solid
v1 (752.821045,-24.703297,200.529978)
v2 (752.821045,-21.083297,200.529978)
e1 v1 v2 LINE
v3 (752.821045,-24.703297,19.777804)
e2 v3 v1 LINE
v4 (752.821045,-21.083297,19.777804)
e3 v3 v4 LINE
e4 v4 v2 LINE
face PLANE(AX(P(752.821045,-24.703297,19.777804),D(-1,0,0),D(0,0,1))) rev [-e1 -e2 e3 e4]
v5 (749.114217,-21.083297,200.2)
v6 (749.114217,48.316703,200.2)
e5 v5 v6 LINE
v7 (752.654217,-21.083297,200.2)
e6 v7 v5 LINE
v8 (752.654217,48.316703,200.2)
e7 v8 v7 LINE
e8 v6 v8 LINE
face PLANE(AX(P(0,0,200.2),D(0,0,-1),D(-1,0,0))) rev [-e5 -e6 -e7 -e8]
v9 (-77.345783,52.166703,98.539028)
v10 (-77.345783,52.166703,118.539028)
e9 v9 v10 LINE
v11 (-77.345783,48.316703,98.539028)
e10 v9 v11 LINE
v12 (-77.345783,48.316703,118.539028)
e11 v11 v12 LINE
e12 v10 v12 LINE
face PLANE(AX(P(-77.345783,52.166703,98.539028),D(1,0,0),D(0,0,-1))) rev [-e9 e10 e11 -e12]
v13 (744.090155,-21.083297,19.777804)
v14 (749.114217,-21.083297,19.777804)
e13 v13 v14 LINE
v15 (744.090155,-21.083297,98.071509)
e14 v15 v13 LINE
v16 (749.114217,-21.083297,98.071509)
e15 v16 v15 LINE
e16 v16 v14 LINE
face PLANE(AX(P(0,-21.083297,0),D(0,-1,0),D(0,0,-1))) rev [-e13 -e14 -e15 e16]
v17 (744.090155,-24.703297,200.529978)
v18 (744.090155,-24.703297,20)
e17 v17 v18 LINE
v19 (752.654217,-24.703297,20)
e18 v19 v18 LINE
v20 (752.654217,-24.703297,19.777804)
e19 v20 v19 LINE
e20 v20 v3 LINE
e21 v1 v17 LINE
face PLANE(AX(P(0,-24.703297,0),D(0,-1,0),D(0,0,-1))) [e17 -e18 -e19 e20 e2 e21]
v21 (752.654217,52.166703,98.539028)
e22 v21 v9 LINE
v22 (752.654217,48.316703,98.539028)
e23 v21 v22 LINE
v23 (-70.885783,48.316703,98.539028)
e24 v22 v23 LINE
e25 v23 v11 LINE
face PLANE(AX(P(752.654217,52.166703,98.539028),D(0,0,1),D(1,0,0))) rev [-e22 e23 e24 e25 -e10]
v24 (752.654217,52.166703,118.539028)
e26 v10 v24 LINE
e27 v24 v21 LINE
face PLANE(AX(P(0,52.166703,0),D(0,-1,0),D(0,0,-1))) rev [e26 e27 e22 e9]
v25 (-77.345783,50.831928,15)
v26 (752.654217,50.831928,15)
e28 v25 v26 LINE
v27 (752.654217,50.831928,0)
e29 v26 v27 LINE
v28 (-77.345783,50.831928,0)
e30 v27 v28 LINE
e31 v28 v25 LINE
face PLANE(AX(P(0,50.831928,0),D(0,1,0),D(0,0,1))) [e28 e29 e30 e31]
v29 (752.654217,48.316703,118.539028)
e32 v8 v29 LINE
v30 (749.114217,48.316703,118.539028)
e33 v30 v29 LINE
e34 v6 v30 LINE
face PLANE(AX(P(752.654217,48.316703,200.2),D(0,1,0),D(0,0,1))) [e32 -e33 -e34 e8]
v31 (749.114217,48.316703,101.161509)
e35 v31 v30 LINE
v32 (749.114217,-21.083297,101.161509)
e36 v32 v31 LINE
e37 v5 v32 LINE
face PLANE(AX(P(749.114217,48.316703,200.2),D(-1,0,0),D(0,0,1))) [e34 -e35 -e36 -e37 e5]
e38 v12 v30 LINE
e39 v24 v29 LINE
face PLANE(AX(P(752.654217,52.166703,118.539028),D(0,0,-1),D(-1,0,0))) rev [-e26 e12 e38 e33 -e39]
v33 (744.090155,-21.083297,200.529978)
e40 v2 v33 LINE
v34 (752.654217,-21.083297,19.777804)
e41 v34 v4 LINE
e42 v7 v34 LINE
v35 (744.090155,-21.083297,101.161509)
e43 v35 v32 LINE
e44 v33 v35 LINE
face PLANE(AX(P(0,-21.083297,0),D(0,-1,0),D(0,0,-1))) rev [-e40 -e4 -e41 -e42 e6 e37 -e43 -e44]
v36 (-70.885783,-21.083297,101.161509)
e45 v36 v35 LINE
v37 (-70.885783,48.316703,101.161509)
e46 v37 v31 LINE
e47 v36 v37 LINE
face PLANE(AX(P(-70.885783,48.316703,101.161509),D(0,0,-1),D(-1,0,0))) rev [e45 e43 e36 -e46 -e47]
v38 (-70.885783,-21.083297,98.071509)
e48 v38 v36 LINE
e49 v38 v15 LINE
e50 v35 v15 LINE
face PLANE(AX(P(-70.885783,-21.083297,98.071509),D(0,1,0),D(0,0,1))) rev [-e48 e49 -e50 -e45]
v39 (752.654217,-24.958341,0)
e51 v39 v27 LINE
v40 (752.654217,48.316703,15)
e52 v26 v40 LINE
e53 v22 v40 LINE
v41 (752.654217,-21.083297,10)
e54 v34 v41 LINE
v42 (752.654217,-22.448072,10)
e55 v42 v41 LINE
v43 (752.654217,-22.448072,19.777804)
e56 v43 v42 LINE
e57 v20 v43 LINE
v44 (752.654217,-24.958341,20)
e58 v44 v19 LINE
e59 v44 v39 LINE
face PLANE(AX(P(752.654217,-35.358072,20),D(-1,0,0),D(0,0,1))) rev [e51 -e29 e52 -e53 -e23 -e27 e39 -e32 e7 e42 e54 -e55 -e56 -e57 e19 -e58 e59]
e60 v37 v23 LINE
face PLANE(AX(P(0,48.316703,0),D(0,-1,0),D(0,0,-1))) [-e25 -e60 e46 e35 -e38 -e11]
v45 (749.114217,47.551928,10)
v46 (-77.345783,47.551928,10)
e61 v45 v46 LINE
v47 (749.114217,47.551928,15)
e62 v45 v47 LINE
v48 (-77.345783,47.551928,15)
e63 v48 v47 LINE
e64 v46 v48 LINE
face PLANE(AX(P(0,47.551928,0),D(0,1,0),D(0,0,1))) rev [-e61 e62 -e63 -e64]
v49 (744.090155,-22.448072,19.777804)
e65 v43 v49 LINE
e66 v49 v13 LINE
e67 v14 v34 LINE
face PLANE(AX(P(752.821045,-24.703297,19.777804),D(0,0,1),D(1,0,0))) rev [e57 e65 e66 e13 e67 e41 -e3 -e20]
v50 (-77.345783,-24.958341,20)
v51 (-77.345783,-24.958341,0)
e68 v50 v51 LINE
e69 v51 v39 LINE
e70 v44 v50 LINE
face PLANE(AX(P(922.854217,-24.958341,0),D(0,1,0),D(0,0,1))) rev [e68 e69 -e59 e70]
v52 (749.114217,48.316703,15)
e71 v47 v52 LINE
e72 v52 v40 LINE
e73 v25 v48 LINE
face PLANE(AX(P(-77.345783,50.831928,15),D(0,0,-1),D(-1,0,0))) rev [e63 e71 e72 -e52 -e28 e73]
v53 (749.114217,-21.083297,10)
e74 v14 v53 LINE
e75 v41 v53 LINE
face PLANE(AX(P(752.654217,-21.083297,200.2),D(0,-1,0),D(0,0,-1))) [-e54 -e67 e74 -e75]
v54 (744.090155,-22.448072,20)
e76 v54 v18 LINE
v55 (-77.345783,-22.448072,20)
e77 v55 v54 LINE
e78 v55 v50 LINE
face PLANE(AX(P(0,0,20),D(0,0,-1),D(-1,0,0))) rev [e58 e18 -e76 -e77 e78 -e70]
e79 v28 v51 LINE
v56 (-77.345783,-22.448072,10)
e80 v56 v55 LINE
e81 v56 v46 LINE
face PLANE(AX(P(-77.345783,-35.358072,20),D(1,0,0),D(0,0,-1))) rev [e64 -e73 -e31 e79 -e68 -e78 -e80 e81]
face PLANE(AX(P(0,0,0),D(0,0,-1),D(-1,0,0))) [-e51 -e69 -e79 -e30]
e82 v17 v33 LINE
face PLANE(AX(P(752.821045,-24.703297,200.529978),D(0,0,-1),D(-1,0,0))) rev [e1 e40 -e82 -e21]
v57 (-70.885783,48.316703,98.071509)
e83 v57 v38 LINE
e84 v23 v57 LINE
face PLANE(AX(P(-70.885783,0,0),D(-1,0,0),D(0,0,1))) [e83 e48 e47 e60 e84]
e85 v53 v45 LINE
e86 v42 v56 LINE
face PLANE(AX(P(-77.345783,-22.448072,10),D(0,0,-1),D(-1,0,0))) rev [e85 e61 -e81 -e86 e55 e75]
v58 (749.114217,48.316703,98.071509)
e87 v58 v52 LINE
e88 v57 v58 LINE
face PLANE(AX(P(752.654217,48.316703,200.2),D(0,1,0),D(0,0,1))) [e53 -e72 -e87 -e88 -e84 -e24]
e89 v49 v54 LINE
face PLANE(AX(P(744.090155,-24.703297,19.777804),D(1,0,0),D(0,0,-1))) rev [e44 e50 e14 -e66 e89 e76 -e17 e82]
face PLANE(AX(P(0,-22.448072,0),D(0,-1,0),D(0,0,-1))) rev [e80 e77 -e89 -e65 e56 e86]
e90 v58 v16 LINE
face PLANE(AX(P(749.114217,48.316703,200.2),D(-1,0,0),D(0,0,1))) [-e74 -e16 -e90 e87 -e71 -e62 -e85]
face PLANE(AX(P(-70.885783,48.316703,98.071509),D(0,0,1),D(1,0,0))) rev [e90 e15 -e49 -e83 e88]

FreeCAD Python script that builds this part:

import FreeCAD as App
import Part
import Sketcher
from FreeCAD import Vector
Q = App.Units.Quantity

doc = App.newDocument("Part")
params = doc.addObject("Spreadsheet::Sheet", "Params")
for row, (alias, value) in enumerate([
    ("sketch1_width", "830 mm"),
    ("sketch1_height", "82.91 mm"),
    ("pad1_length", "20 mm"),
    ("sketch2_width", "830 mm"),
    ("sketch2_height", "10 mm"),
    ("pocket1_length", "70 mm"),
    ("sketch3_width", "830 mm"),
    ("sketch3_height", "15 mm"),
    ("pad2_length", "3.28 mm"),
    ("sketch4_height", "69.4 mm"),
    ("sketch4_width", "3.54 mm"),
    ("pad3_length", "200.2 mm"),
    ("sketch5_height", "20 mm"),
    ("pocket2_length", "1000.2 mm"),
    ("pad4_length", "3.62 mm"),
    ("sketch7_width", "69.4 mm"),
    ("sketch7_height", "3.09 mm"),
    ("pad5_length", "820 mm"),
    ("sketch8_width", "830 mm"),
    ("sketch8_height", "20 mm"),
    ("pad6_length", "3.85 mm"),
], start=1):
    params.set(f"A{row}", alias)
    params.set(f"B{row}", "=" + value)
    params.setAlias(f"B{row}", alias)

body = doc.addObject("PartDesign::Body", "Body")

# Sketch on XY plane
sketch1 = body.newObject("Sketcher::SketchObject", "Sketch")
sketch1.AttachmentSupport = (doc.getObject("XY_Plane"), [""])
sketch1.MapMode = "FlatFace"
sketch1.addGeometry([
    Part.LineSegment(Vector(-77, 48, 0), Vector(-77, -35, 0)),
    Part.LineSegment(Vector(-77, -35, 0), Vector(753, -35, 0)),
    Part.LineSegment(Vector(753, -35, 0), Vector(753, 48, 0)),
    Part.LineSegment(Vector(753, 48, 0), Vector(-77, 48, 0)),
], False)
sketch1.addConstraint([
    Sketcher.Constraint("Coincident", 0, 2, 1, 1),
    Sketcher.Constraint("Coincident", 1, 2, 2, 1),
    Sketcher.Constraint("Coincident", 2, 2, 3, 1),
    Sketcher.Constraint("Coincident", 3, 2, 0, 1),
    Sketcher.Constraint("Vertical", 0),
    Sketcher.Constraint("Horizontal", 1),
    Sketcher.Constraint("Vertical", 2),
    Sketcher.Constraint("Horizontal", 3),
    Sketcher.Constraint("DistanceX", 1, 1, 1, 2, Q("830 mm")),
    Sketcher.Constraint("DistanceY", 0, 2, 0, 1, Q("82.91 mm")),
    Sketcher.Constraint("DistanceX", 0, 2, -1, 1, Q("77.345783 mm")),
    Sketcher.Constraint("DistanceY", 0, 2, -1, 1, Q("35.358072 mm")),
])
sketch1.setExpression("Constraints[8]", "Params.sketch1_width")
sketch1.setExpression("Constraints[9]", "Params.sketch1_height")
pad1 = body.newObject("PartDesign::Pad", "Pad")
pad1.Profile = sketch1
pad1.setExpression("Length", "Params.pad1_length")

# Sketch on XZ plane
sketch2 = body.newObject("Sketcher::SketchObject", "Sketch001")
sketch2.AttachmentSupport = (doc.getObject("XZ_Plane"), [""])
sketch2.MapMode = "FlatFace"
sketch2.AttachmentOffset = App.Placement(Vector(0, 0, -47.551928), App.Rotation())
sketch2.addGeometry([
    Part.LineSegment(Vector(-77, 10, 0), Vector(-77, 20, 0)),
    Part.LineSegment(Vector(-77, 20, 0), Vector(753, 20, 0)),
    Part.LineSegment(Vector(753, 20, 0), Vector(753, 10, 0)),
    Part.LineSegment(Vector(753, 10, 0), Vector(-77, 10, 0)),
], False)
sketch2.addConstraint([
    Sketcher.Constraint("Coincident", 0, 2, 1, 1),
    Sketcher.Constraint("Coincident", 1, 2, 2, 1),
    Sketcher.Constraint("Coincident", 2, 2, 3, 1),
    Sketcher.Constraint("Coincident", 3, 2, 0, 1),
    Sketcher.Constraint("Vertical", 0),
    Sketcher.Constraint("Horizontal", 1),
    Sketcher.Constraint("Vertical", 2),
    Sketcher.Constraint("Horizontal", 3),
    Sketcher.Constraint("DistanceX", 1, 1, 1, 2, Q("830 mm")),
    Sketcher.Constraint("DistanceY", 0, 1, 0, 2, Q("10 mm")),
    Sketcher.Constraint("DistanceY", -1, 1, 0, 2, Q("20 mm")),
    Sketcher.Constraint("DistanceX", 0, 2, -1, 1, Q("77.345783 mm")),
])
sketch2.setExpression("Constraints[8]", "Params.sketch2_width")
sketch2.setExpression("Constraints[9]", "Params.sketch2_height")
pocket1 = body.newObject("PartDesign::Pocket", "Pocket")
pocket1.Profile = sketch2
pocket1.setExpression("Length", "Params.pocket1_length")
pocket1.Reversed = True

# Sketch on XZ plane
sketch3 = body.newObject("Sketcher::SketchObject", "Sketch002")
sketch3.AttachmentSupport = (doc.getObject("XZ_Plane"), [""])
sketch3.MapMode = "FlatFace"
sketch3.AttachmentOffset = App.Placement(Vector(0, 0, -47.551928), App.Rotation())
sketch3.addGeometry([
    Part.LineSegment(Vector(-77, 0, 0), Vector(-77, 15, 0)),
    Part.LineSegment(Vector(-77, 15, 0), Vector(753, 15, 0)),
    Part.LineSegment(Vector(753, 15, 0), Vector(753, 0, 0)),
    Part.LineSegment(Vector(753, 0, 0), Vector(-77, 0, 0)),
], False)
sketch3.addConstraint([
    Sketcher.Constraint("Coincident", 0, 2, 1, 1),
    Sketcher.Constraint("Coincident", 1, 2, 2, 1),
    Sketcher.Constraint("Coincident", 2, 2, 3, 1),
    Sketcher.Constraint("Coincident", 3, 2, 0, 1),
    Sketcher.Constraint("Vertical", 0),
    Sketcher.Constraint("Horizontal", 1),
    Sketcher.Constraint("Vertical", 2),
    Sketcher.Constraint("Horizontal", 3),
    Sketcher.Constraint("PointOnObject", 2, 2, -1),
    Sketcher.Constraint("DistanceX", 1, 1, 1, 2, Q("830 mm")),
    Sketcher.Constraint("DistanceY", 0, 1, 0, 2, Q("15 mm")),
    Sketcher.Constraint("DistanceX", 0, 2, -1, 1, Q("77.345783 mm")),
])
sketch3.setExpression("Constraints[9]", "Params.sketch3_width")
sketch3.setExpression("Constraints[10]", "Params.sketch3_height")
pad2 = body.newObject("PartDesign::Pad", "Pad001")
pad2.Profile = sketch3
pad2.setExpression("Length", "Params.pad2_length")
pad2.Reversed = True

# Sketch on XY plane
sketch4 = body.newObject("Sketcher::SketchObject", "Sketch003")
sketch4.AttachmentSupport = (doc.getObject("XY_Plane"), [""])
sketch4.MapMode = "FlatFace"
sketch4.addGeometry([
    Part.LineSegment(Vector(752.7, 48.3, 0), Vector(752.7, -21.1, 0)),
    Part.LineSegment(Vector(752.7, -21.1, 0), Vector(749.1, -21.1, 0)),
    Part.LineSegment(Vector(749.1, -21.1, 0), Vector(749.1, 48.3, 0)),
    Part.LineSegment(Vector(749.1, 48.3, 0), Vector(752.7, 48.3, 0)),
], False)
sketch4.addConstraint([
    Sketcher.Constraint("Coincident", 0, 2, 1, 1),
    Sketcher.Constraint("Coincident", 1, 2, 2, 1),
    Sketcher.Constraint("Coincident", 2, 2, 3, 1),
    Sketcher.Constraint("Coincident", 3, 2, 0, 1),
    Sketcher.Constraint("Vertical", 0),
    Sketcher.Constraint("Horizontal", 1),
    Sketcher.Constraint("Vertical", 2),
    Sketcher.Constraint("Horizontal", 3),
    Sketcher.Constraint("DistanceY", 0, 2, 0, 1, Q("69.4 mm")),
    Sketcher.Constraint("DistanceX", 1, 2, 1, 1, Q("3.54 mm")),
    Sketcher.Constraint("DistanceX", -1, 1, 0, 2, Q("752.654217 mm")),
    Sketcher.Constraint("DistanceY", 0, 2, -1, 1, Q("21.083297 mm")),
])
sketch4.setExpression("Constraints[8]", "Params.sketch4_height")
sketch4.setExpression("Constraints[9]", "Params.sketch4_width")
pad3 = body.newObject("PartDesign::Pad", "Pad002")
pad3.Profile = sketch4
pad3.setExpression("Length", "Params.pad3_length")

# Sketch on YZ plane
sketch5 = body.newObject("Sketcher::SketchObject", "Sketch004")
sketch5.AttachmentSupport = (doc.getObject("YZ_Plane"), [""])
sketch5.MapMode = "FlatFace"
sketch5.AttachmentOffset = App.Placement(Vector(0, 0, -77.345783), App.Rotation())
sketch5.addGeometry([
    Part.LineSegment(Vector(-25, 0, 0), Vector(-35, 0, 0)),
    Part.LineSegment(Vector(-35, 0, 0), Vector(-35, 20, 0)),
    Part.LineSegment(Vector(-35, 20, 0), Vector(-25, 20, 0)),
    Part.LineSegment(Vector(-25, 20, 0), Vector(-25, 0, 0)),
], False)
sketch5.addConstraint([
    Sketcher.Constraint("Coincident", 0, 2, 1, 1),
    Sketcher.Constraint("Coincident", 1, 2, 2, 1),
    Sketcher.Constraint("Coincident", 2, 2, 3, 1),
    Sketcher.Constraint("Coincident", 3, 2, 0, 1),
    Sketcher.Constraint("Horizontal", 0),
    Sketcher.Constraint("Vertical", 1),
    Sketcher.Constraint("Horizontal", 2),
    Sketcher.Constraint("Vertical", 3),
    Sketcher.Constraint("PointOnObject", 0, 2, -1),
    Sketcher.Constraint("DistanceY", 1, 1, 1, 2, Q("20 mm")),
    Sketcher.Constraint("DistanceX", 0, 2, 0, 1, Q("10.399731 mm")),
    Sketcher.Constraint("DistanceX", 2, 2, -1, 1, Q("24.958341 mm")),
])
sketch5.setExpression("Constraints[9]", "Params.sketch5_height")
pocket2 = body.newObject("PartDesign::Pocket", "Pocket001")
pocket2.Profile = sketch5
pocket2.setExpression("Length", "Params.pocket2_length")
pocket2.Reversed = True

# Sketch on XZ plane
sketch6 = body.newObject("Sketcher::SketchObject", "Sketch005")
sketch6.AttachmentSupport = (doc.getObject("XZ_Plane"), [""])
sketch6.MapMode = "FlatFace"
sketch6.AttachmentOffset = App.Placement(Vector(0, 0, 21.083297), App.Rotation())
sketch6.addGeometry([
    Part.LineSegment(Vector(744, 201, 0), Vector(744, 20, 0)),
    Part.LineSegment(Vector(744, 20, 0), Vector(753, 20, 0)),
    Part.LineSegment(Vector(753, 20, 0), Vector(753, 201, 0)),
    Part.LineSegment(Vector(753, 201, 0), Vector(744, 201, 0)),
], False)
sketch6.addConstraint([
    Sketcher.Constraint("Coincident", 0, 2, 1, 1),
    Sketcher.Constraint("Coincident", 1, 2, 2, 1),
    Sketcher.Constraint("Coincident", 2, 2, 3, 1),
    Sketcher.Constraint("Coincident", 3, 2, 0, 1),
    Sketcher.Constraint("Vertical", 0),
    Sketcher.Constraint("Horizontal", 1),
    Sketcher.Constraint("Vertical", 2),
    Sketcher.Constraint("Horizontal", 3),
    Sketcher.Constraint("DistanceX", 1, 1, 1, 2, Q("8.730891 mm")),
    Sketcher.Constraint("DistanceY", 0, 2, 0, 1, Q("180.752174 mm")),
    Sketcher.Constraint("DistanceY", -1, 1, 2, 2, Q("200.529978 mm")),
    Sketcher.Constraint("DistanceX", -1, 1, 0, 2, Q("744.090155 mm")),
])
pad4 = body.newObject("PartDesign::Pad", "Pad003")
pad4.Profile = sketch6
pad4.setExpression("Length", "Params.pad4_length")

# Sketch on YZ plane
sketch7 = body.newObject("Sketcher::SketchObject", "Sketch006")
sketch7.AttachmentSupport = (doc.getObject("YZ_Plane"), [""])
sketch7.MapMode = "FlatFace"
sketch7.AttachmentOffset = App.Placement(Vector(0, 0, 749.114217), App.Rotation())
sketch7.addGeometry([
    Part.LineSegment(Vector(48.3, 98.1, 0), Vector(-21.1, 98.1, 0)),
    Part.LineSegment(Vector(-21.1, 98.1, 0), Vector(-21.1, 101.2, 0)),
    Part.LineSegment(Vector(-21.1, 101.2, 0), Vector(48.3, 101.2, 0)),
    Part.LineSegment(Vector(48.3, 101.2, 0), Vector(48.3, 98.1, 0)),
], False)
sketch7.addConstraint([
    Sketcher.Constraint("Coincident", 0, 2, 1, 1),
    Sketcher.Constraint("Coincident", 1, 2, 2, 1),
    Sketcher.Constraint("Coincident", 2, 2, 3, 1),
    Sketcher.Constraint("Coincident", 3, 2, 0, 1),
    Sketcher.Constraint("Horizontal", 0),
    Sketcher.Constraint("Vertical", 1),
    Sketcher.Constraint("Horizontal", 2),
    Sketcher.Constraint("Vertical", 3),
    Sketcher.Constraint("DistanceX", 0, 2, 0, 1, Q("69.4 mm")),
    Sketcher.Constraint("DistanceY", 1, 1, 1, 2, Q("3.09 mm")),
    Sketcher.Constraint("DistanceY", -1, 1, 0, 2, Q("98.071509 mm")),
    Sketcher.Constraint("DistanceX", 0, 2, -1, 1, Q("21.083297 mm")),
])
sketch7.setExpression("Constraints[8]", "Params.sketch7_width")
sketch7.setExpression("Constraints[9]", "Params.sketch7_height")
pad5 = body.newObject("PartDesign::Pad", "Pad004")
pad5.Profile = sketch7
pad5.setExpression("Length", "Params.pad5_length")
pad5.Reversed = True

# Sketch on XZ plane
sketch8 = body.newObject("Sketcher::SketchObject", "Sketch007")
sketch8.AttachmentSupport = (doc.getObject("XZ_Plane"), [""])
sketch8.MapMode = "FlatFace"
sketch8.AttachmentOffset = App.Placement(Vector(0, 0, -48.316703), App.Rotation())
sketch8.addGeometry([
    Part.LineSegment(Vector(-77, 99, 0), Vector(-77, 119, 0)),
    Part.LineSegment(Vector(-77, 119, 0), Vector(753, 119, 0)),
    Part.LineSegment(Vector(753, 119, 0), Vector(753, 99, 0)),
    Part.LineSegment(Vector(753, 99, 0), Vector(-77, 99, 0)),
], False)
sketch8.addConstraint([
    Sketcher.Constraint("Coincident", 0, 2, 1, 1),
    Sketcher.Constraint("Coincident", 1, 2, 2, 1),
    Sketcher.Constraint("Coincident", 2, 2, 3, 1),
    Sketcher.Constraint("Coincident", 3, 2, 0, 1),
    Sketcher.Constraint("Vertical", 0),
    Sketcher.Constraint("Horizontal", 1),
    Sketcher.Constraint("Vertical", 2),
    Sketcher.Constraint("Horizontal", 3),
    Sketcher.Constraint("DistanceX", 1, 1, 1, 2, Q("830 mm")),
    Sketcher.Constraint("DistanceY", 0, 1, 0, 2, Q("20 mm")),
    Sketcher.Constraint("DistanceX", 0, 2, -1, 1, Q("77.345783 mm")),
    Sketcher.Constraint("DistanceY", -1, 1, 0, 2, Q("118.539028 mm")),
])
sketch8.setExpression("Constraints[8]", "Params.sketch8_width")
sketch8.setExpression("Constraints[9]", "Params.sketch8_height")
pad6 = body.newObject("PartDesign::Pad", "Pad005")
pad6.Profile = sketch8
pad6.setExpression("Length", "Params.pad6_length")
pad6.Reversed = True

doc.recompute()
